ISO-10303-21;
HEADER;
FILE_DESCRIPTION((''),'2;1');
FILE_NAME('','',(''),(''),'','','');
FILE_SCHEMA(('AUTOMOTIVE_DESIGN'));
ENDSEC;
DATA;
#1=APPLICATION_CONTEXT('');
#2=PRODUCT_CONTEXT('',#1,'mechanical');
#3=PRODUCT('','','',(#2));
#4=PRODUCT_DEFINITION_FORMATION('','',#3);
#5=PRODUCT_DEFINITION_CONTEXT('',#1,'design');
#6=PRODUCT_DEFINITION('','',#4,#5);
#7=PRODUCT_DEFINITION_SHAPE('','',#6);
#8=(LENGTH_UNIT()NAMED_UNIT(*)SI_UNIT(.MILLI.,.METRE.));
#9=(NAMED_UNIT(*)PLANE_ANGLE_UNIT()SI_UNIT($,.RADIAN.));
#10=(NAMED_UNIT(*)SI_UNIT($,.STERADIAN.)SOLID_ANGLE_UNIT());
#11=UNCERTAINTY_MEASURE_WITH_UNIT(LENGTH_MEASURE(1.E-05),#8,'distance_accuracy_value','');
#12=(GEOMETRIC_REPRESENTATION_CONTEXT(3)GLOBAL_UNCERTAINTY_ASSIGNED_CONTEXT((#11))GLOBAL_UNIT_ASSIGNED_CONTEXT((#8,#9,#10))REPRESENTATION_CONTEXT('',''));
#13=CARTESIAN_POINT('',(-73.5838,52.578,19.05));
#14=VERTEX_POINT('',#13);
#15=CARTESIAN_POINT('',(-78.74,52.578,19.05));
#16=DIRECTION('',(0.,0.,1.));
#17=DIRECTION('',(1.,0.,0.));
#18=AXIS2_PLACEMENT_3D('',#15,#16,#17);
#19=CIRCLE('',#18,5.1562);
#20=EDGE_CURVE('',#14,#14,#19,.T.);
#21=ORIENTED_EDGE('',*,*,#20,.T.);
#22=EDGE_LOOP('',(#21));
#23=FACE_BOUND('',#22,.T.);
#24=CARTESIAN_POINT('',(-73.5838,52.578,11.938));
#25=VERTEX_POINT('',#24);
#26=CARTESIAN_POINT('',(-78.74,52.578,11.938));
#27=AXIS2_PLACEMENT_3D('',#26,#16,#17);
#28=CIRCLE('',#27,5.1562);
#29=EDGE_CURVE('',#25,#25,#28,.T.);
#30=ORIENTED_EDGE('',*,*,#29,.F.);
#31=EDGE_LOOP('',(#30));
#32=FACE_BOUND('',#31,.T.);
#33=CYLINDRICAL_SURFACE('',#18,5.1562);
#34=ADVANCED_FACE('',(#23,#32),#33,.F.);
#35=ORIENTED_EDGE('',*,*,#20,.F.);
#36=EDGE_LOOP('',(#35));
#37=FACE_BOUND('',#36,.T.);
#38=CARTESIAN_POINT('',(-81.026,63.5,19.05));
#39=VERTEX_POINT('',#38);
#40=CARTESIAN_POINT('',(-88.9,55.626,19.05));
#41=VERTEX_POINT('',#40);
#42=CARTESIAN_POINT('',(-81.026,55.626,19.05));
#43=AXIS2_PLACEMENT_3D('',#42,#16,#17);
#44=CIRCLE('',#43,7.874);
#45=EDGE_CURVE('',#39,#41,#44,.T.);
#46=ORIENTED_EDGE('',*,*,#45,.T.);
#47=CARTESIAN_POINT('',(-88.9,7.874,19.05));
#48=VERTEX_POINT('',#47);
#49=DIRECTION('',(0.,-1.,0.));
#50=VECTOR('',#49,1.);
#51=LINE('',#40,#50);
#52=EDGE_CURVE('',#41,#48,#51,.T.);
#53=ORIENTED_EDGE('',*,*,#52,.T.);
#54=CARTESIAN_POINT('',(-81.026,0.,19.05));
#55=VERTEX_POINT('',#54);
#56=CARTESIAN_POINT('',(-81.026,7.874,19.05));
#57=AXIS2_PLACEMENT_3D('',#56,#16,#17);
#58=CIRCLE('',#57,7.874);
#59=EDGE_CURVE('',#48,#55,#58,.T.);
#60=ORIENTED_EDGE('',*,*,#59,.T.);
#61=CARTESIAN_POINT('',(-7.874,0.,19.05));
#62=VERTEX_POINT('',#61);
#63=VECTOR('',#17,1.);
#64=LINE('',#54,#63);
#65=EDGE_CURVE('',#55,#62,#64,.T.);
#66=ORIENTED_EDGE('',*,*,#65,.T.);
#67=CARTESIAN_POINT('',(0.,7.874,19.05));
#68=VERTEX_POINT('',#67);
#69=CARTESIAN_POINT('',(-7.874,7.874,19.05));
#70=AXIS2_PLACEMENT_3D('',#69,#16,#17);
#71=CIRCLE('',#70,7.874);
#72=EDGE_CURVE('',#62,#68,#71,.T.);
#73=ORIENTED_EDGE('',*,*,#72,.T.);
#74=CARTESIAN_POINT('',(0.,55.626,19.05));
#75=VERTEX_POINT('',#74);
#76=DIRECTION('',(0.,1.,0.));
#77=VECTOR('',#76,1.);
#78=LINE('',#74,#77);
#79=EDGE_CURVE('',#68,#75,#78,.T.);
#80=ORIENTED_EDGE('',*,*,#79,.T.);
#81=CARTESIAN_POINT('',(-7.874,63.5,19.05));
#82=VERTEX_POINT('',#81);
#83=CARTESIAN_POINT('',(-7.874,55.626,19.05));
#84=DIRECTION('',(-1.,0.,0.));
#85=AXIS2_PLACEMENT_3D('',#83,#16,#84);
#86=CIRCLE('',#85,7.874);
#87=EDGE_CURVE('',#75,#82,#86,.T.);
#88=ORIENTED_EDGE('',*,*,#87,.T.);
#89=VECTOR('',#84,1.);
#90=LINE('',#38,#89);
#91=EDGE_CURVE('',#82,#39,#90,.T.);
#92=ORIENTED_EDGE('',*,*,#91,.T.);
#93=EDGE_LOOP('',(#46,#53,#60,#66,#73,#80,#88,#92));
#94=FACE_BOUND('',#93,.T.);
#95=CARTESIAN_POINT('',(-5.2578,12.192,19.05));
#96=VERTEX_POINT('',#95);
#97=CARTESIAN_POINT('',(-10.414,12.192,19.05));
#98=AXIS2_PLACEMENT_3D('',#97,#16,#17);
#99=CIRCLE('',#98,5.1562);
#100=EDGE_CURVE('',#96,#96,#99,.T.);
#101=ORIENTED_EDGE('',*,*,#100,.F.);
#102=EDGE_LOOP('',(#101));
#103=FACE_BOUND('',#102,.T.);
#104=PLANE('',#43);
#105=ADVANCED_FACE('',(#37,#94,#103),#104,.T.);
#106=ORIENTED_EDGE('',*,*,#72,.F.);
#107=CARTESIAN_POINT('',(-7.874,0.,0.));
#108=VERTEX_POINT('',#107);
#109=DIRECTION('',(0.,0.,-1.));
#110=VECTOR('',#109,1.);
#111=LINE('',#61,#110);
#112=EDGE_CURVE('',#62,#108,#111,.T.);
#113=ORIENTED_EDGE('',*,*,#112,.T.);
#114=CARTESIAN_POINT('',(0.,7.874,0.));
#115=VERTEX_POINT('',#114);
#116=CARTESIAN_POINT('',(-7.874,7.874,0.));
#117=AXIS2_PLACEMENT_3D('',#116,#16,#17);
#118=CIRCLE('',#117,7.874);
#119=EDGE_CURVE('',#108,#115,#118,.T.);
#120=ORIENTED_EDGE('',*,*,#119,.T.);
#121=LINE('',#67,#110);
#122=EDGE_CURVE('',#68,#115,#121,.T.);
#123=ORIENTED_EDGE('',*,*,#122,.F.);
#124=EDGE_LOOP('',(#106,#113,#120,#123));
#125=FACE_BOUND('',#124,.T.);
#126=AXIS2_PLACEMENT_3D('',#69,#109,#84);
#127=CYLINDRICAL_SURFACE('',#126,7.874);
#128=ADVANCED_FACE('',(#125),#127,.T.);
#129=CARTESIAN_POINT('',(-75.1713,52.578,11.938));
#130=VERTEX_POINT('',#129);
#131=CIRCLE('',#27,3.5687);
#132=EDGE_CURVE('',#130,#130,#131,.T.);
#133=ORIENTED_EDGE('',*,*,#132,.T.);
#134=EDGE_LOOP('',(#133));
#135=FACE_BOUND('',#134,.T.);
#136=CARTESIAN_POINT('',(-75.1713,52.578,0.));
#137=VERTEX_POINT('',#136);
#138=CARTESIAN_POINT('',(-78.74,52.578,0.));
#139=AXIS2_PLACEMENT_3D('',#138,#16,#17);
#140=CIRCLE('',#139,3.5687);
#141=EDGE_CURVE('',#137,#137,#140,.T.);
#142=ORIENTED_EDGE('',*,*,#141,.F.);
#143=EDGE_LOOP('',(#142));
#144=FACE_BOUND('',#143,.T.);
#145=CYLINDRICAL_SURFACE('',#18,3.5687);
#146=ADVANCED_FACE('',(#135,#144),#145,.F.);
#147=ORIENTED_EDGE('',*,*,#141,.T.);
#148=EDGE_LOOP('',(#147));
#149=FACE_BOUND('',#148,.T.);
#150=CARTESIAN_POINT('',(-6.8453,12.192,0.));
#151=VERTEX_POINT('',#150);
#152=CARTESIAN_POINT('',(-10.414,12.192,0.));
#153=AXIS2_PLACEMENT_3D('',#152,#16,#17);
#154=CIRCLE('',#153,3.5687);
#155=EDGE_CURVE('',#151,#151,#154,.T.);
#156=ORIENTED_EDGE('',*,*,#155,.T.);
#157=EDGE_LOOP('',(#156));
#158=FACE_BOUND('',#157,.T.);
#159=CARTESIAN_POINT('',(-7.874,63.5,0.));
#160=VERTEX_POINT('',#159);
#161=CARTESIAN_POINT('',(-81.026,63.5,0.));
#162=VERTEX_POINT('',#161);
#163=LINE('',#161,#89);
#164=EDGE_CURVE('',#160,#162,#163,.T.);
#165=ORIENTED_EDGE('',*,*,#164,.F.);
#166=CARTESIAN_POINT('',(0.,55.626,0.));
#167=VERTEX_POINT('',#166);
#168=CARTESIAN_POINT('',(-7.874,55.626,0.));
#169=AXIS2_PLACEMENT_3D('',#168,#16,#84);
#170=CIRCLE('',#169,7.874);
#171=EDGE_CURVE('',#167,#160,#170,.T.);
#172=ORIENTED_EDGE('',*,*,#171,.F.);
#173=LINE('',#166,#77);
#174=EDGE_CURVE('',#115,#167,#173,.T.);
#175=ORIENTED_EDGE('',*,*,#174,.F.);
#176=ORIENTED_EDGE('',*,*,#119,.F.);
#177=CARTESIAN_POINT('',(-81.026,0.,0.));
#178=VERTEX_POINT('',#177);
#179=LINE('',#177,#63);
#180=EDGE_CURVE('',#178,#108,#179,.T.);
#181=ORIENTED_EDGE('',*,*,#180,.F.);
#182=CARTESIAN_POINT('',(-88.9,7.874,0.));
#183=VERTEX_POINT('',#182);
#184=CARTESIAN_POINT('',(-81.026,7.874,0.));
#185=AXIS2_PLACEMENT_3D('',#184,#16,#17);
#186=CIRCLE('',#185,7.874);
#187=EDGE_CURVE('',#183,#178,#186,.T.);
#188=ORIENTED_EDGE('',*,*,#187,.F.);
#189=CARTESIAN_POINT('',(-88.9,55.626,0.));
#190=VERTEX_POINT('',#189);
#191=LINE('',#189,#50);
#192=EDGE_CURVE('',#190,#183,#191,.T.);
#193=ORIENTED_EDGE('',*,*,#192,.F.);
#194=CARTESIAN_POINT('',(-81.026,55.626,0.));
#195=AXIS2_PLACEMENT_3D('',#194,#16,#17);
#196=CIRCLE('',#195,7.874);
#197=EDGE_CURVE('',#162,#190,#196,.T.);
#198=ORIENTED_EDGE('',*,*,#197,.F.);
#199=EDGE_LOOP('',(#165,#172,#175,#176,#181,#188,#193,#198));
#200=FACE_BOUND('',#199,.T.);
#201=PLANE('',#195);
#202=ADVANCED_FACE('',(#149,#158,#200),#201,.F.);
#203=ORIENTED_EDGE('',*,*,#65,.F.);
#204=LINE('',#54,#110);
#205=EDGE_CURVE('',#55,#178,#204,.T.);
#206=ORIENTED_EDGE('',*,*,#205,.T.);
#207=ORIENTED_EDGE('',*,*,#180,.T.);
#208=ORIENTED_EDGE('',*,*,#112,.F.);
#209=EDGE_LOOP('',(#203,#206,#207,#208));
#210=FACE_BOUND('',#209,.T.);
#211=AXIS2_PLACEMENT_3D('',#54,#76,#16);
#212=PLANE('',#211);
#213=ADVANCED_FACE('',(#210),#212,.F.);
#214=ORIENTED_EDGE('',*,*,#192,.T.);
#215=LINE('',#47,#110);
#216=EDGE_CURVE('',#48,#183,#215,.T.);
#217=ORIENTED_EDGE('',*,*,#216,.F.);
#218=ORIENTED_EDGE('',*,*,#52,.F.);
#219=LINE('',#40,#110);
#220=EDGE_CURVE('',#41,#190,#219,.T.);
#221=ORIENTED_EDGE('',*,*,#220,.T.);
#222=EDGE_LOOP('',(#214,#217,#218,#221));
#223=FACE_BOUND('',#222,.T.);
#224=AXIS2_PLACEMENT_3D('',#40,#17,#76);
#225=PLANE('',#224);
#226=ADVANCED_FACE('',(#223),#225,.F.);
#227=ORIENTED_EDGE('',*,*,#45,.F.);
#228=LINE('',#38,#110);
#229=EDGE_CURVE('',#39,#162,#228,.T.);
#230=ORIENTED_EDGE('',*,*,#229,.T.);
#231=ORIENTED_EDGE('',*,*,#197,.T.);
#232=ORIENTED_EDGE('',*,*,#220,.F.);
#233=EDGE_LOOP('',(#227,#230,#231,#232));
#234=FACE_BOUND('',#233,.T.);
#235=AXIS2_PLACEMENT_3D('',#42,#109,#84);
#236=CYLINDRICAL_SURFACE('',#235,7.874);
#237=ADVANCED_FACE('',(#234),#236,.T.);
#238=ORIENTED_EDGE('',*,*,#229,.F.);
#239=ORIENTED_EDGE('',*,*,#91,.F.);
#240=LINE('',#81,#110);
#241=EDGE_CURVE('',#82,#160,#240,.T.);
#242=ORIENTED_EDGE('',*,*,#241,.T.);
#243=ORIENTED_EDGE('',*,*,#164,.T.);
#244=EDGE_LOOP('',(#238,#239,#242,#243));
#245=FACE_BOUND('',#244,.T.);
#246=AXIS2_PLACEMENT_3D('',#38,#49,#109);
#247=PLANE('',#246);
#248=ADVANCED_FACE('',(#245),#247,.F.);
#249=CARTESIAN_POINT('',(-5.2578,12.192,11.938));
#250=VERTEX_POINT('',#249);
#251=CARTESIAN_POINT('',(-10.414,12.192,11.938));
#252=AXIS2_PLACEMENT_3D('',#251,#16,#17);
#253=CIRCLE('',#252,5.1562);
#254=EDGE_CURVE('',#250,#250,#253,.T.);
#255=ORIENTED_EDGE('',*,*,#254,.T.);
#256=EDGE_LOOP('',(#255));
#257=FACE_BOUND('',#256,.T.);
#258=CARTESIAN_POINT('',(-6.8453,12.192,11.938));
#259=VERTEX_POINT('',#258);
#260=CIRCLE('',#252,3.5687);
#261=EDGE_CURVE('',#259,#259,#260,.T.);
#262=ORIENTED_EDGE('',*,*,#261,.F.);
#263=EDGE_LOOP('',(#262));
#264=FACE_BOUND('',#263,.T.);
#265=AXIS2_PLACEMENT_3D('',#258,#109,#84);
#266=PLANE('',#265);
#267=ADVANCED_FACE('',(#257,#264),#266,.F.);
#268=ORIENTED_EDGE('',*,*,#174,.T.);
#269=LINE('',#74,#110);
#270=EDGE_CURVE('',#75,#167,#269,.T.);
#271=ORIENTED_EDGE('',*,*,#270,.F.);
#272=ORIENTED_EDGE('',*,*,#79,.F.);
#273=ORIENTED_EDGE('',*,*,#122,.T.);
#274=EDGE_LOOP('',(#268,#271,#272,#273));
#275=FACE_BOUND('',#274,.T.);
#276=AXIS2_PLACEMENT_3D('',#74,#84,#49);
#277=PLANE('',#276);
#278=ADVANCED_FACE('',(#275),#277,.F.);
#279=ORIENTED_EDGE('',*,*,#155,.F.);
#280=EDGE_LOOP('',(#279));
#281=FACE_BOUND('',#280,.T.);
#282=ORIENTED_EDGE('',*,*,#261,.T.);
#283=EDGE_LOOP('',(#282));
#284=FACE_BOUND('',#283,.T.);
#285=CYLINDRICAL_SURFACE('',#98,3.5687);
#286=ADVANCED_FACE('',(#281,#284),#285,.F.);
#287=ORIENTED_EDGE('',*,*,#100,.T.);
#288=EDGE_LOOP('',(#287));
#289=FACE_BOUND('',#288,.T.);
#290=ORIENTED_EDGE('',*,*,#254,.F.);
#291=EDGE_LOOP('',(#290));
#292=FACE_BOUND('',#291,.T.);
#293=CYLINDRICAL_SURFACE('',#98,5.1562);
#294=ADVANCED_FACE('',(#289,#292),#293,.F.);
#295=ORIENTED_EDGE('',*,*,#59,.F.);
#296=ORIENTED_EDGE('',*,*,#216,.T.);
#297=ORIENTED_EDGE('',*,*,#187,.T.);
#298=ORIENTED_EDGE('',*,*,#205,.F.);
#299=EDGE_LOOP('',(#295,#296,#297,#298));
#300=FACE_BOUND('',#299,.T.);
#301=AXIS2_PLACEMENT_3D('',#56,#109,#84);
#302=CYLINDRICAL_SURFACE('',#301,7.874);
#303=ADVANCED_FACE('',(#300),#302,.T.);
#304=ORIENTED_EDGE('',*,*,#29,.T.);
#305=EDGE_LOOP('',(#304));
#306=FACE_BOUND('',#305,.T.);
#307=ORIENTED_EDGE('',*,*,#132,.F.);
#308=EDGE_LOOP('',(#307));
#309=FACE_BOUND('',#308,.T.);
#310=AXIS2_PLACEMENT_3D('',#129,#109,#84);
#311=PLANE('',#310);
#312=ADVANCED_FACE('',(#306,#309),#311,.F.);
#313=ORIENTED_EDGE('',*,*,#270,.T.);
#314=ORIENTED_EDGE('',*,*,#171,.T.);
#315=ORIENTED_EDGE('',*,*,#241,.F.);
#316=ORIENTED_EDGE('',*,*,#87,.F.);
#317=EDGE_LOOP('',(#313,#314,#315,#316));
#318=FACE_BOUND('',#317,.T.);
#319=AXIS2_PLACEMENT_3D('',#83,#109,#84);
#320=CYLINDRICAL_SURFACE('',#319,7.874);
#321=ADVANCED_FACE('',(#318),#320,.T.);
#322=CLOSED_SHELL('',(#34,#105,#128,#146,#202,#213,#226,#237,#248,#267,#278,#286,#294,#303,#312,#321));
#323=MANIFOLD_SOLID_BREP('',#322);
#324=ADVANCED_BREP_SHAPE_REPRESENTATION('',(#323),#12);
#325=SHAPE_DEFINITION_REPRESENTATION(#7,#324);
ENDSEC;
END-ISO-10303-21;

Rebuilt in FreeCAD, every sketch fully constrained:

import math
import FreeCAD as App
import Part
import Sketcher
from FreeCAD import Vector
Q = App.Units.Quantity

doc = App.newDocument("Part")
params = doc.addObject("Spreadsheet::Sheet", "Params")
for row, (alias, value) in enumerate([
    ("sketch1_radius", "0.31 in"),
    ("sketch1_width", "2.88 in"),
    ("sketch1_height", "1.88 in"),
    ("pad1_length", "0.75 in"),
    ("sketch2_diameter", "0.281 in"),
    ("hole_diameter", "0.281 in"),
    ("hole_cbore_diameter", "0.406 in"),
    ("hole_cbore_depth", "0.28 in"),
], start=1):
    params.set(f"A{row}", alias)
    params.set(f"B{row}", "=" + value)
    params.setAlias(f"B{row}", alias)

body = doc.addObject("PartDesign::Body", "Body")

# Sketch on XY plane
sketch1 = body.newObject("Sketcher::SketchObject", "Sketch")
sketch1.AttachmentSupport = (doc.getObject("XY_Plane"), [""])
sketch1.MapMode = "FlatFace"
sketch1.addGeometry(Part.LineSegment(Vector(-8, 64, 0), Vector(-81, 64, 0)), False)
sketch1.addGeometry(Part.ArcOfCircle(Part.Circle(Vector(-81, 56, 0), Vector(0, 0, 1), 8), math.radians(90), math.radians(180)), False)
sketch1.addGeometry(Part.LineSegment(Vector(-89, 56, 0), Vector(-89, 8, 0)), False)
sketch1.addGeometry(Part.ArcOfCircle(Part.Circle(Vector(-81, 8, 0), Vector(0, 0, 1), 8), math.radians(180), math.radians(270)), False)
sketch1.addGeometry(Part.LineSegment(Vector(-81, 0, 0), Vector(-8, 0, 0)), False)
sketch1.addGeometry(Part.ArcOfCircle(Part.Circle(Vector(-8, 8, 0), Vector(0, 0, 1), 8), math.radians(-90), math.radians(0)), False)
sketch1.addGeometry(Part.LineSegment(Vector(0, 8, 0), Vector(0, 56, 0)), False)
sketch1.addGeometry(Part.ArcOfCircle(Part.Circle(Vector(-8, 56, 0), Vector(0, 0, 1), 8), math.radians(0), math.radians(90)), False)
sketch1.addConstraint(Sketcher.Constraint("Tangent", 0, 2, 1, 1))
sketch1.addConstraint(Sketcher.Constraint("Tangent", 1, 2, 2, 1))
sketch1.addConstraint(Sketcher.Constraint("Tangent", 2, 2, 3, 1))
sketch1.addConstraint(Sketcher.Constraint("Tangent", 3, 2, 4, 1))
sketch1.addConstraint(Sketcher.Constraint("Tangent", 4, 2, 5, 1))
sketch1.addConstraint(Sketcher.Constraint("Tangent", 5, 2, 6, 1))
sketch1.addConstraint(Sketcher.Constraint("Tangent", 6, 2, 7, 1))
sketch1.addConstraint(Sketcher.Constraint("Tangent", 7, 2, 0, 1))
sketch1.addConstraint(Sketcher.Constraint("Horizontal", 0))
sketch1.addConstraint(Sketcher.Constraint("Vertical", 2))
sketch1.addConstraint(Sketcher.Constraint("Horizontal", 4))
sketch1.addConstraint(Sketcher.Constraint("Vertical", 6))
sketch1.addConstraint(Sketcher.Constraint("Equal", 1, 3))
sketch1.addConstraint(Sketcher.Constraint("Equal", 3, 5))
sketch1.addConstraint(Sketcher.Constraint("Equal", 5, 7))
sketch1.addConstraint(Sketcher.Constraint("PointOnObject", 3, 2, -1))
sketch1.addConstraint(Sketcher.Constraint("PointOnObject", 5, 2, -2))
sketch1.addConstraint(Sketcher.Constraint("Radius", 1, Q("0.31 in")))
sketch1.addConstraint(Sketcher.Constraint("DistanceX", 0, 2, 0, 1, Q("2.88 in")))
sketch1.addConstraint(Sketcher.Constraint("DistanceY", 2, 2, 2, 1, Q("1.88 in")))
sketch1.setExpression("Constraints[17]", "Params.sketch1_radius")
sketch1.setExpression("Constraints[18]", "Params.sketch1_width")
sketch1.setExpression("Constraints[19]", "Params.sketch1_height")
pad1 = body.newObject("PartDesign::Pad", "Pad")
pad1.Profile = sketch1
pad1.setExpression("Length", "Params.pad1_length")

# Sketch on XY plane
sketch2 = body.newObject("Sketcher::SketchObject", "Sketch001")
sketch2.AttachmentSupport = (doc.getObject("XY_Plane"), [""])
sketch2.MapMode = "FlatFace"
sketch2.AttachmentOffset = App.Placement(Vector(0, 0, 0.75 * 25.4), App.Rotation())
sketch2.addGeometry(Part.Circle(Vector(-10.4, 12.2, 0), Vector(0, 0, 1), 3.6), False)
sketch2.addGeometry(Part.Circle(Vector(-78.7, 52.6, 0), Vector(0, 0, 1), 3.6), False)
sketch2.addConstraint(Sketcher.Constraint("Equal", 0, 1))
sketch2.addConstraint(Sketcher.Constraint("Diameter", 0, Q("0.281 in")))
sketch2.addConstraint(Sketcher.Constraint("DistanceX", 1, 3, -1, 1, Q("3.1 in")))
sketch2.addConstraint(Sketcher.Constraint("DistanceX", 0, 3, -1, 1, Q("0.41 in")))
sketch2.addConstraint(Sketcher.Constraint("DistanceY", -1, 1, 0, 3, Q("0.48 in")))
sketch2.addConstraint(Sketcher.Constraint("DistanceY", -1, 1, 1, 3, Q("2.07 in")))
sketch2.setExpression("Constraints[1]", "Params.sketch2_diameter")
doc.recompute()
hole = body.newObject("PartDesign::Hole", "Hole")
hole.Profile = sketch2
hole.ThreadType = "None"
hole.setExpression("Diameter", "Params.hole_diameter")
hole.DepthType = "ThroughAll"
hole.HoleCutType = "Counterbore"
hole.setExpression("HoleCutDiameter", "Params.hole_cbore_diameter")
hole.setExpression("HoleCutDepth", "Params.hole_cbore_depth")

doc.recompute()
